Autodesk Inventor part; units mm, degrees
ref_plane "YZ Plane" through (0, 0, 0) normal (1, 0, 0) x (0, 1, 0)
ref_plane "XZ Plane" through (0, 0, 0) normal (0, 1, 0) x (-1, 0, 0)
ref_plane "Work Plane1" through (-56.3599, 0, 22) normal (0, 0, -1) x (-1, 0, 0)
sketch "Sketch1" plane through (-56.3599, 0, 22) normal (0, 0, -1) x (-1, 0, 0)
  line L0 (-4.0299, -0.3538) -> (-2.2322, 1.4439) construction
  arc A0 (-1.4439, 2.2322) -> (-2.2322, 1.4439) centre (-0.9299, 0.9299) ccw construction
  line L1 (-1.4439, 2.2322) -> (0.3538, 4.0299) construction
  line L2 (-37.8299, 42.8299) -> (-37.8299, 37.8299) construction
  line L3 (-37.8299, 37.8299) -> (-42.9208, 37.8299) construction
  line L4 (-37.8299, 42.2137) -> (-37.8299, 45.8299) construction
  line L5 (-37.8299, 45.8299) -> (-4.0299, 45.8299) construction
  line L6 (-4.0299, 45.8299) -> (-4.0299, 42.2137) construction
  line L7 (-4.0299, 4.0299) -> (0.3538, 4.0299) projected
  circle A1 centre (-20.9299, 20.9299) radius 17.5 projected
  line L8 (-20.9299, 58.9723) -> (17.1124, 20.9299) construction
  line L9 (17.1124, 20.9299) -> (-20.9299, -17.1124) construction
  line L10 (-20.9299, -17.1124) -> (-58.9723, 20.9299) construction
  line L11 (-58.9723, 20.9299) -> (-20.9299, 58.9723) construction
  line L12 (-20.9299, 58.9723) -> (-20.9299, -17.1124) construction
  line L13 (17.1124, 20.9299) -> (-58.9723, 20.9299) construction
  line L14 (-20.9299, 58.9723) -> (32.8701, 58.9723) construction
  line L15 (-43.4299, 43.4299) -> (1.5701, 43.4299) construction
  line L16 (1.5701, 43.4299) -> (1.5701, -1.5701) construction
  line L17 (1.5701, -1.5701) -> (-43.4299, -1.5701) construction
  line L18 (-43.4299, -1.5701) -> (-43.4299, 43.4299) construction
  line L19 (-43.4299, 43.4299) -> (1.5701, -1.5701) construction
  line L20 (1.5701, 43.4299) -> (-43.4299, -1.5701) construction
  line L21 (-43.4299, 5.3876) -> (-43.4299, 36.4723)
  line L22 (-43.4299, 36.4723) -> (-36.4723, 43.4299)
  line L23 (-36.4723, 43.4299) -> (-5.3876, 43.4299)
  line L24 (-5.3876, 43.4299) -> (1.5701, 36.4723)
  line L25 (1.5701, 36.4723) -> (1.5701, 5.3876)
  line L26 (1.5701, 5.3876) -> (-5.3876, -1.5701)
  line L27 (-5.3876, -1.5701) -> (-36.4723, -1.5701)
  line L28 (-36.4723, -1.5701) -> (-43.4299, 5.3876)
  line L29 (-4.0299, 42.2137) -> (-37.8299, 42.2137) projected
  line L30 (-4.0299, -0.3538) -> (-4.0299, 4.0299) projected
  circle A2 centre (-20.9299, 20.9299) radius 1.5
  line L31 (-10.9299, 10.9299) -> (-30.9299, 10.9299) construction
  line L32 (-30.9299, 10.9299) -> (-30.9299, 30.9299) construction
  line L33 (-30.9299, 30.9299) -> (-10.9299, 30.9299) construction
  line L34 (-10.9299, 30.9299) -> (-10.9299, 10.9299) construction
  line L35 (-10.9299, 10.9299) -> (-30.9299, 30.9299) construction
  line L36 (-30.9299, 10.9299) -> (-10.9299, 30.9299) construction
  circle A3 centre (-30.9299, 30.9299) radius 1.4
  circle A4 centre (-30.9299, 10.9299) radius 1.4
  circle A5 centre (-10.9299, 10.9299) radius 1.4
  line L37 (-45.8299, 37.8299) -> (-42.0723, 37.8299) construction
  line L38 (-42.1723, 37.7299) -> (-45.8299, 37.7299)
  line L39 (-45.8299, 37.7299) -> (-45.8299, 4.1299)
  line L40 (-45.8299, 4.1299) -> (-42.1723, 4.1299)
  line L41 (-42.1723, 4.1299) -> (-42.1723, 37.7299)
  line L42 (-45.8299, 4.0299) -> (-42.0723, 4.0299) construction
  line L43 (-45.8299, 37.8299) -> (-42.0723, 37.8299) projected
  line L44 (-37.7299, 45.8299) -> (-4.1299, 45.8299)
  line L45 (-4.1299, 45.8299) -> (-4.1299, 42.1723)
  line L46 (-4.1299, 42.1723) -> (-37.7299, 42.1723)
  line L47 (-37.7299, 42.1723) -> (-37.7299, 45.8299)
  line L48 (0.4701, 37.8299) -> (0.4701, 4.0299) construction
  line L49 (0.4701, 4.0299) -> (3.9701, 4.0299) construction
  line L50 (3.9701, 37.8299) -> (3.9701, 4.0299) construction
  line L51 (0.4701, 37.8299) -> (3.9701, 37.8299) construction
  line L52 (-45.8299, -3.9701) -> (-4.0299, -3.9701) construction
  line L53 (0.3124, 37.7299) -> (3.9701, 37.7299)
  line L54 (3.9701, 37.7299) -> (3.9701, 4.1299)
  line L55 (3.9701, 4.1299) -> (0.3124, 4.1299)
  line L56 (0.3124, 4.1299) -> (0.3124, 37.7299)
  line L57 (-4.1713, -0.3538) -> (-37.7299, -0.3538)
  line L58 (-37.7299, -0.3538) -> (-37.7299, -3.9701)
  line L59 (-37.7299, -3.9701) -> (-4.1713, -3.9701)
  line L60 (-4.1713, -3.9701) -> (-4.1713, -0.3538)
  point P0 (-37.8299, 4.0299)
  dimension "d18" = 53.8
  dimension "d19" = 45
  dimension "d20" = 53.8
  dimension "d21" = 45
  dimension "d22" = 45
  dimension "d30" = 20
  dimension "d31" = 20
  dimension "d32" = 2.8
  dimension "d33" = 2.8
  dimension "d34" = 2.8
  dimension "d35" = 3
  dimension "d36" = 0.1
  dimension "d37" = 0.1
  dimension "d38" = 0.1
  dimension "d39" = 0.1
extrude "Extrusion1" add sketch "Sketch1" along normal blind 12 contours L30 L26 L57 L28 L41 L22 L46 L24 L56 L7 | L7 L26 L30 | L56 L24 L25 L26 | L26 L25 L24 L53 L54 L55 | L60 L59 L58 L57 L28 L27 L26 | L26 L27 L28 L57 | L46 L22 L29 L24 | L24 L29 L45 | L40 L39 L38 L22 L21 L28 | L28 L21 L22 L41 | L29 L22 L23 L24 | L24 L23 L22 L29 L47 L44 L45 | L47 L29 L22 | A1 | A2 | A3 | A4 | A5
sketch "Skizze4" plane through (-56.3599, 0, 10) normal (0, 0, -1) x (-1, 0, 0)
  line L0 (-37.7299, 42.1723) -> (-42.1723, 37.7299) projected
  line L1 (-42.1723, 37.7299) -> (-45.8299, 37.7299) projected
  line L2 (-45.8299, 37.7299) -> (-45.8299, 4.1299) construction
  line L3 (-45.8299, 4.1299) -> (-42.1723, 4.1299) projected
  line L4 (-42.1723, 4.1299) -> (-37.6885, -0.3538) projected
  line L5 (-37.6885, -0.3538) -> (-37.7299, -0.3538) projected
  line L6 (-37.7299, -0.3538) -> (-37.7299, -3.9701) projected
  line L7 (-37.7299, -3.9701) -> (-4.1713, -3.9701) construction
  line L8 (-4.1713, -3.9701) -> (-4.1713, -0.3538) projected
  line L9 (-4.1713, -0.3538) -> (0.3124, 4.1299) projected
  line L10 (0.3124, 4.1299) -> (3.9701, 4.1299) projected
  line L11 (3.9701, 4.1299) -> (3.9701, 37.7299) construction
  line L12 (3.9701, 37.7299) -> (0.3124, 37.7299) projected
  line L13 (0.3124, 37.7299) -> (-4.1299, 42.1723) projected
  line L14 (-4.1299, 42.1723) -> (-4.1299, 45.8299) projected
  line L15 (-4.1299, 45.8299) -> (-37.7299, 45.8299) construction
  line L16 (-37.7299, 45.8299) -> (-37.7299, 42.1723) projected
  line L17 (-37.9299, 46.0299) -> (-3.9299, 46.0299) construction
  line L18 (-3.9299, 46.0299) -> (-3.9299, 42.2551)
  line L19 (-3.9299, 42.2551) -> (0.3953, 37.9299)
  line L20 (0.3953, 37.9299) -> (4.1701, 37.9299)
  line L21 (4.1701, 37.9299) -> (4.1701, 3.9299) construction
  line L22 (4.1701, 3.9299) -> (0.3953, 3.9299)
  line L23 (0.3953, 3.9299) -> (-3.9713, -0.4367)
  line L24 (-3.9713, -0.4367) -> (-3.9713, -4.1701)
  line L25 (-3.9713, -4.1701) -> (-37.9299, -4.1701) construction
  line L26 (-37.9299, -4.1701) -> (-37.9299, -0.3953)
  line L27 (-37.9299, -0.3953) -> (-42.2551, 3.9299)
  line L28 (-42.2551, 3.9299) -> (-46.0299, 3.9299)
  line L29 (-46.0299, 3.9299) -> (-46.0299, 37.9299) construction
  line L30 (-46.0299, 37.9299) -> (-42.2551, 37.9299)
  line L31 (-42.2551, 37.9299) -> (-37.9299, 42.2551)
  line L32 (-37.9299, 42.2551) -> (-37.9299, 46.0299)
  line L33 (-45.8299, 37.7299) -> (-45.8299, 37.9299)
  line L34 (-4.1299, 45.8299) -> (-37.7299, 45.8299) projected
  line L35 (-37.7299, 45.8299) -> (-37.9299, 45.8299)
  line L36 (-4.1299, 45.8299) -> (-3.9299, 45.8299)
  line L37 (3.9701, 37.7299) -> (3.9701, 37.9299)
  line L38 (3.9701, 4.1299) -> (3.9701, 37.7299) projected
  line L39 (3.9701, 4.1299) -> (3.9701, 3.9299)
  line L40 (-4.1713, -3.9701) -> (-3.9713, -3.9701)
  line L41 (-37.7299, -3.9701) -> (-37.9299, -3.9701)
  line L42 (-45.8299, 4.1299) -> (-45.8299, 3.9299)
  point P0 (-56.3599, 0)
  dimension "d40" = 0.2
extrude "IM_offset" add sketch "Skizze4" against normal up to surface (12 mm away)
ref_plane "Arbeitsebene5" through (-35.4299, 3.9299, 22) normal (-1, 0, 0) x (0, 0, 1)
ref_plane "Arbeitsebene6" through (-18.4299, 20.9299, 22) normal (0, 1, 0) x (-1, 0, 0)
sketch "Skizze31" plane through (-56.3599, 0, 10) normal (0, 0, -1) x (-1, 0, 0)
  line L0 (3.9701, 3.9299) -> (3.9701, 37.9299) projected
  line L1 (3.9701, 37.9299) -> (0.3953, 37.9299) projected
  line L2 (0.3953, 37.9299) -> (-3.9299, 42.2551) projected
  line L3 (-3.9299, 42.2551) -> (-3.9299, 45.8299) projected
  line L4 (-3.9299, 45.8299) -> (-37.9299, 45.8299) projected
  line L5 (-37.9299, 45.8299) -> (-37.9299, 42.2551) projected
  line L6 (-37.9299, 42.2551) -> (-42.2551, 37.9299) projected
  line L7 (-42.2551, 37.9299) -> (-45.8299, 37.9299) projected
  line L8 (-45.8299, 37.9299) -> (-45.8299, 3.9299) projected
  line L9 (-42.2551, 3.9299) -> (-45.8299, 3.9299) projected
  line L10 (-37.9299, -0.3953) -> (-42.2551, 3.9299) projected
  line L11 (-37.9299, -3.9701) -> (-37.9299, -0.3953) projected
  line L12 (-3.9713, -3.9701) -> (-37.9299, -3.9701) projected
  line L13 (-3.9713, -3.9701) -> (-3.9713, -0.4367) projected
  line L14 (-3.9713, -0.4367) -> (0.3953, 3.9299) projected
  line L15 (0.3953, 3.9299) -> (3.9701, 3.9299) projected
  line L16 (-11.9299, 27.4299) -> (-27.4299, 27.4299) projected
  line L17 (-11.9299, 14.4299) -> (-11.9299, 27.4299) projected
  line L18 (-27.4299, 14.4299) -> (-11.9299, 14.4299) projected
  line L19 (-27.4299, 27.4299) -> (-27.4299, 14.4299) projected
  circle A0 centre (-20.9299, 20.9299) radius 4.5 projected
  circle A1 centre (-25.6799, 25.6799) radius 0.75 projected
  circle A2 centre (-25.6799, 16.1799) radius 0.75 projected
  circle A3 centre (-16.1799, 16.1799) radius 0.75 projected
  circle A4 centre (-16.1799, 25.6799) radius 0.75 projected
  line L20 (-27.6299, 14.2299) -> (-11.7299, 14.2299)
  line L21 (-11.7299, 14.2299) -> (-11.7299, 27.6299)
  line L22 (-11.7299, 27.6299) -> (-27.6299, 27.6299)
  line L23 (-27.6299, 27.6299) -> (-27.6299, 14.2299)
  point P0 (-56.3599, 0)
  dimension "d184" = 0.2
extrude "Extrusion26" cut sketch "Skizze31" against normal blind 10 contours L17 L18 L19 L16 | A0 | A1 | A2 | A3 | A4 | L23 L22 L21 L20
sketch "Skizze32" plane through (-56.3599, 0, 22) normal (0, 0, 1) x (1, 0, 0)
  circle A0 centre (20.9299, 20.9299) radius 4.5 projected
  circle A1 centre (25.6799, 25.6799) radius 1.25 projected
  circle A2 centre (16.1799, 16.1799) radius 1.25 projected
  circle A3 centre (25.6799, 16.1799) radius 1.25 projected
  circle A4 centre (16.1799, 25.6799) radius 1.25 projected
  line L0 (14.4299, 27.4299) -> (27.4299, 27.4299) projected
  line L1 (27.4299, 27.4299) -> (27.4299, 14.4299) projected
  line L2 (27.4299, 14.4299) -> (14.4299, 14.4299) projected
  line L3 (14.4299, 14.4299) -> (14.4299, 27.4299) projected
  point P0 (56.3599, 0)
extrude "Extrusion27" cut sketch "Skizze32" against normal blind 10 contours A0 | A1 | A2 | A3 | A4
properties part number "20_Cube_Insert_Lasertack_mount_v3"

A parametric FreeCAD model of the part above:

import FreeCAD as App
import Part
import Sketcher
from FreeCAD import Vector
Q = App.Units.Quantity


def add_polygon(sketch, points):
    """Adds a closed chain of lines whose ends are joined by coincident constraints."""
    first, n = sketch.GeometryCount, len(points)
    for a, b in zip(points, points[1:] + points[:1]):
        sketch.addGeometry(Part.LineSegment(App.Vector(*a, 0), App.Vector(*b, 0)), False)
    for i in range(n):
        sketch.addConstraint(Sketcher.Constraint("Coincident", first + i, 2, first + (i + 1) % n, 1))

doc = App.newDocument("Part")
params = doc.addObject("Spreadsheet::Sheet", "Params")
for row, (alias, value) in enumerate([
    ("sketch1_width", "33.6 mm"),
    ("pad1_length", "12 mm"),
    ("sketch2_width", "0.2 mm"),
    ("pad2_length", "12 mm"),
    ("sketch3_width", "15.9 mm"),
    ("sketch3_height", "13.4 mm"),
    ("pocket1_length", "10 mm"),
    ("sketch4_diameter", "9 mm"),
    ("sketch4_diameter2", "2.5 mm"),
    ("pocket2_length", "10 mm"),
], start=1):
    params.set(f"A{row}", alias)
    params.set(f"B{row}", "=" + value)
    params.setAlias(f"B{row}", alias)

body = doc.addObject("PartDesign::Body", "Body")

# Sketch on XY plane
sketch1 = body.newObject("Sketcher::SketchObject", "Sketch")
sketch1.AttachmentSupport = (doc.getObject("XY_Plane"), [""])
sketch1.MapMode = "FlatFace"
sketch1.AttachmentOffset = App.Placement(Vector(0, 0, 22), App.Rotation())
add_polygon(sketch1, [(-52.189, -0.354), (-56.672, 4.13), (-60.33, 4.13), (-60.33, 37.73), (-56.672, 37.73), (-52.23, 42.172), (-52.23, 45.83), (-18.63, 45.83), (-18.63, 42.172), (-14.188, 37.73), (-10.53, 37.73), (-10.53, 4.13), (-14.188, 4.13), (-18.671, -0.354), (-18.63, -0.354), (-18.63, -3.97), (-52.189, -3.97)])  # lines 0-16
sketch1.addConstraint(Sketcher.Constraint("Horizontal", 1))
sketch1.addConstraint(Sketcher.Constraint("Vertical", 2))
sketch1.addConstraint(Sketcher.Constraint("Horizontal", 3))
sketch1.addConstraint(Sketcher.Constraint("Vertical", 5))
sketch1.addConstraint(Sketcher.Constraint("Horizontal", 6))
sketch1.addConstraint(Sketcher.Constraint("Vertical", 7))
sketch1.addConstraint(Sketcher.Constraint("Horizontal", 9))
sketch1.addConstraint(Sketcher.Constraint("Vertical", 10))
sketch1.addConstraint(Sketcher.Constraint("Horizontal", 11))
sketch1.addConstraint(Sketcher.Constraint("Horizontal", 13))
sketch1.addConstraint(Sketcher.Constraint("Vertical", 14))
sketch1.addConstraint(Sketcher.Constraint("Horizontal", 15))
sketch1.addConstraint(Sketcher.Constraint("Vertical", 16))
sketch1.addConstraint(Sketcher.Constraint("Perpendicular", 0, 4))
sketch1.addConstraint(Sketcher.Constraint("Perpendicular", 4, 8))
sketch1.addConstraint(Sketcher.Constraint("Perpendicular", 8, 12))
sketch1.addConstraint(Sketcher.Constraint("Horizontal", 4, 2, 7, 2))
sketch1.addConstraint(Sketcher.Constraint("Horizontal", 3, 2, 8, 2))
sketch1.addConstraint(Sketcher.Constraint("Horizontal", 1, 2, 10, 2))
sketch1.addConstraint(Sketcher.Constraint("Horizontal", 13, 2, 16, 2))
sketch1.addConstraint(Sketcher.Constraint("Vertical", 0, 2, 3, 2))
sketch1.addConstraint(Sketcher.Constraint("Vertical", 8, 2, 11, 2))
sketch1.addConstraint(Sketcher.Constraint("Vertical", 7, 2, 13, 2))
sketch1.addConstraint(Sketcher.Constraint("Equal", 3, 9))
sketch1.addConstraint(Sketcher.Constraint("Equal", 6, 2))
sketch1.addConstraint(Sketcher.Constraint("Equal", 11, 5))
sketch1.addConstraint(Sketcher.Constraint("Equal", 4, 8))
sketch1.addConstraint(Sketcher.Constraint("DistanceX", 6, 1, 6, 2, Q("33.6 mm")))
sketch1.addConstraint(Sketcher.Constraint("DistanceX", 2, 2, 4, 2, Q("8.1 mm")))
sketch1.addConstraint(Sketcher.Constraint("DistanceY", 14, 2, 11, 2, Q("8.1 mm")))
sketch1.addConstraint(Sketcher.Constraint("DistanceY", -1, 1, 0, 2, Q("4.13 mm")))
sketch1.addConstraint(Sketcher.Constraint("DistanceX", 1, 2, -1, 1, Q("60.33 mm")))
sketch1.addConstraint(Sketcher.Constraint("Distance", 0, Q("6.341 mm")))
sketch1.addConstraint(Sketcher.Constraint("DistanceX", 1, 2, 1, 1, Q("3.6577 mm")))
sketch1.setExpression("Constraints[44]", "Params.sketch1_width")
pad1 = body.newObject("PartDesign::Pad", "Pad")
pad1.Profile = sketch1
pad1.setExpression("Length", "Params.pad1_length")
pad1.Reversed = True

# Sketch on XY plane
sketch2 = body.newObject("Sketcher::SketchObject", "Sketch001")
sketch2.AttachmentSupport = (doc.getObject("XY_Plane"), [""])
sketch2.MapMode = "FlatFace"
sketch2.AttachmentOffset = App.Placement(Vector(0, 0, 10), App.Rotation())
add_polygon(sketch2, [(-60.33, 3.93), (-60.33, 4.13), (-56.672, 4.13), (-52.189, -0.354), (-52.189, -3.97), (-52.389, -3.97), (-52.389, -0.437), (-56.755, 3.93)])  # lines 0-7
add_polygon(sketch2, [(-52.43, 45.83), (-52.23, 45.83), (-52.23, 42.172), (-56.672, 37.73), (-60.33, 37.73), (-60.33, 37.93), (-56.755, 37.93), (-52.43, 42.255)])  # lines 8-15
add_polygon(sketch2, [(-14.188, 37.73), (-18.63, 42.172), (-18.63, 45.83), (-18.43, 45.83), (-18.43, 42.255), (-14.105, 37.93), (-10.53, 37.93), (-10.53, 37.73)])  # lines 16-23
add_polygon(sketch2, [(-14.188, 4.13), (-10.53, 4.13), (-10.53, 3.93), (-14.105, 3.93), (-18.43, -0.395), (-18.43, -3.97), (-18.63, -3.97), (-18.63, -0.354), (-18.671, -0.354)])  # lines 24-32
sketch2.addConstraint(Sketcher.Constraint("Vertical", 0))
sketch2.addConstraint(Sketcher.Constraint("Horizontal", 1))
sketch2.addConstraint(Sketcher.Constraint("Vertical", 3))
sketch2.addConstraint(Sketcher.Constraint("Horizontal", 4))
sketch2.addConstraint(Sketcher.Constraint("Vertical", 5))
sketch2.addConstraint(Sketcher.Constraint("Horizontal", 7))
sketch2.addConstraint(Sketcher.Constraint("Horizontal", 8))
sketch2.addConstraint(Sketcher.Constraint("Vertical", 9))
sketch2.addConstraint(Sketcher.Constraint("Horizontal", 11))
sketch2.addConstraint(Sketcher.Constraint("Vertical", 12))
sketch2.addConstraint(Sketcher.Constraint("Horizontal", 13))
sketch2.addConstraint(Sketcher.Constraint("Vertical", 15))
sketch2.addConstraint(Sketcher.Constraint("Vertical", 17))
sketch2.addConstraint(Sketcher.Constraint("Horizontal", 18))
sketch2.addConstraint(Sketcher.Constraint("Vertical", 19))
sketch2.addConstraint(Sketcher.Constraint("Horizontal", 21))
sketch2.addConstraint(Sketcher.Constraint("Vertical", 22))
sketch2.addConstraint(Sketcher.Constraint("Horizontal", 23))
sketch2.addConstraint(Sketcher.Constraint("Horizontal", 24))
sketch2.addConstraint(Sketcher.Constraint("Vertical", 25))
sketch2.addConstraint(Sketcher.Constraint("Horizontal", 26))
sketch2.addConstraint(Sketcher.Constraint("Vertical", 28))
sketch2.addConstraint(Sketcher.Constraint("Horizontal", 29))
sketch2.addConstraint(Sketcher.Constraint("Vertical", 30))
sketch2.addConstraint(Sketcher.Constraint("Horizontal", 31))
sketch2.addConstraint(Sketcher.Constraint("Parallel", 2, 6))
sketch2.addConstraint(Sketcher.Constraint("Perpendicular", 6, 10))
sketch2.addConstraint(Sketcher.Constraint("Parallel", 10, 14))
sketch2.addConstraint(Sketcher.Constraint("Perpendicular", 14, 16))
sketch2.addConstraint(Sketcher.Constraint("Parallel", 16, 20))
sketch2.addConstraint(Sketcher.Constraint("Perpendicular", 20, 27))
sketch2.addConstraint(Sketcher.Constraint("Parallel", 27, 32))
sketch2.addConstraint(Sketcher.Constraint("Horizontal", 9, 2, 16, 2))
sketch2.addConstraint(Sketcher.Constraint("Horizontal", 15, 2, 17, 2))
sketch2.addConstraint(Sketcher.Constraint("Horizontal", 14, 2, 19, 2))
sketch2.addConstraint(Sketcher.Constraint("Horizontal", 13, 2, 20, 2))
sketch2.addConstraint(Sketcher.Constraint("Horizontal", 11, 2, 22, 2))
sketch2.addConstraint(Sketcher.Constraint("Horizontal", 1, 2, 24, 2))
sketch2.addConstraint(Sketcher.Constraint("Horizontal", 7, 2, 25, 2))
sketch2.addConstraint(Sketcher.Constraint("Horizontal", 4, 2, 28, 2))
sketch2.addConstraint(Sketcher.Constraint("Horizontal", 2, 2, 30, 2))
sketch2.addConstraint(Sketcher.Constraint("Vertical", 1, 2, 10, 2))
sketch2.addConstraint(Sketcher.Constraint("Vertical", 7, 2, 11, 2))
sketch2.addConstraint(Sketcher.Constraint("Vertical", 6, 2, 13, 2))
sketch2.addConstraint(Sketcher.Constraint("Vertical", 22, 2, 24, 2))
sketch2.addConstraint(Sketcher.Constraint("Vertical", 20, 2, 26, 2))
sketch2.addConstraint(Sketcher.Constraint("Vertical", 19, 2, 27, 2))
sketch2.addConstraint(Sketcher.Constraint("Vertical", 17, 2, 29, 2))
sketch2.addConstraint(Sketcher.Constraint("Vertical", 23, 2, 32, 2))
sketch2.addConstraint(Sketcher.Constraint("Equal", 4, 8))
sketch2.addConstraint(Sketcher.Constraint("Equal", 8, 18))
sketch2.addConstraint(Sketcher.Constraint("Equal", 13, 21))
sketch2.addConstraint(Sketcher.Constraint("Equal", 11, 23))
sketch2.addConstraint(Sketcher.Constraint("Equal", 29, 0))
sketch2.addConstraint(Sketcher.Constraint("Equal", 24, 9))
sketch2.addConstraint(Sketcher.Constraint("Equal", 0, 12))
sketch2.addConstraint(Sketcher.Constraint("Equal", 19, 28))
sketch2.addConstraint(Sketcher.Constraint("DistanceX", 4, 2, 4, 1, Q("0.2 mm")))
sketch2.addConstraint(Sketcher.Constraint("DistanceX", 15, 2, 18, 2, Q("34 mm")))
sketch2.addConstraint(Sketcher.Constraint("DistanceY", 25, 2, 21, 2, Q("34 mm")))
sketch2.addConstraint(Sketcher.Constraint("DistanceY", 3, 2, 1, 2, Q("8.1 mm")))
sketch2.addConstraint(Sketcher.Constraint("DistanceX", 0, 2, -1, 1, Q("60.33 mm")))
sketch2.addConstraint(Sketcher.Constraint("DistanceY", -1, 1, 0, 2, Q("4.13 mm")))
sketch2.addConstraint(Sketcher.Constraint("Distance", 2, Q("6.341 mm")))
sketch2.addConstraint(Sketcher.Constraint("DistanceX", 1, 1, 1, 2, Q("3.6577 mm")))
sketch2.addConstraint(Sketcher.Constraint("DistanceX", 7, 2, 7, 1, Q("3.5748 mm")))
sketch2.setExpression("Constraints[90]", "Params.sketch2_width")
pad2 = body.newObject("PartDesign::Pad", "Pad001")
pad2.Profile = sketch2
pad2.setExpression("Length", "Params.pad2_length")

# Sketch on XY plane
sketch3 = body.newObject("Sketcher::SketchObject", "Sketch002")
sketch3.AttachmentSupport = (doc.getObject("XY_Plane"), [""])
sketch3.MapMode = "FlatFace"
sketch3.AttachmentOffset = App.Placement(Vector(0, 0, 10), App.Rotation())
add_polygon(sketch3, [(-29, 28), (-29, 14), (-45, 14), (-45, 28)])  # lines 0-3
sketch3.addConstraint(Sketcher.Constraint("Vertical", 0))
sketch3.addConstraint(Sketcher.Constraint("Horizontal", 1))
sketch3.addConstraint(Sketcher.Constraint("Vertical", 2))
sketch3.addConstraint(Sketcher.Constraint("Horizontal", 3))
sketch3.addConstraint(Sketcher.Constraint("DistanceX", 1, 2, 1, 1, Q("15.9 mm")))
sketch3.addConstraint(Sketcher.Constraint("DistanceY", 0, 2, 0, 1, Q("13.4 mm")))
sketch3.addConstraint(Sketcher.Constraint("DistanceX", 0, 2, -1, 1, Q("28.73 mm")))
sketch3.addConstraint(Sketcher.Constraint("DistanceY", -1, 1, 0, 2, Q("14.23 mm")))
sketch3.setExpression("Constraints[8]", "Params.sketch3_width")
sketch3.setExpression("Constraints[9]", "Params.sketch3_height")
pocket1 = body.newObject("PartDesign::Pocket", "Pocket")
pocket1.Profile = sketch3
pocket1.setExpression("Length", "Params.pocket1_length")
pocket1.Reversed = True

# Sketch on XY plane
sketch4 = body.newObject("Sketcher::SketchObject", "Sketch003")
sketch4.AttachmentSupport = (doc.getObject("XY_Plane"), [""])
sketch4.MapMode = "FlatFace"
sketch4.AttachmentOffset = App.Placement(Vector(0, 0, 22), App.Rotation())
sketch4.addGeometry(Part.Circle(Vector(-35.4, 20.9, 0), Vector(0, 0, 1), 4.5), False)
sketch4.addGeometry(Part.Circle(Vector(-30.7, 25.7, 0), Vector(0, 0, 1), 1.2), False)
sketch4.addGeometry(Part.Circle(Vector(-40.2, 16.2, 0), Vector(0, 0, 1), 1.2), False)
sketch4.addGeometry(Part.Circle(Vector(-30.7, 16.2, 0), Vector(0, 0, 1), 1.2), False)
sketch4.addGeometry(Part.Circle(Vector(-40.2, 25.7, 0), Vector(0, 0, 1), 1.2), False)
sketch4.addConstraint(Sketcher.Constraint("Equal", 1, 2))
sketch4.addConstraint(Sketcher.Constraint("Equal", 2, 3))
sketch4.addConstraint(Sketcher.Constraint("Equal", 3, 4))
sketch4.addConstraint(Sketcher.Constraint("Horizontal", 2, 3, 3, 3))
sketch4.addConstraint(Sketcher.Constraint("Horizontal", 1, 3, 4, 3))
sketch4.addConstraint(Sketcher.Constraint("Vertical", 1, 3, 3, 3))
sketch4.addConstraint(Sketcher.Constraint("Vertical", 2, 3, 4, 3))
sketch4.addConstraint(Sketcher.Constraint("Diameter", 0, Q("9 mm")))
sketch4.addConstraint(Sketcher.Constraint("Diameter", 1, Q("2.5 mm")))
sketch4.addConstraint(Sketcher.Constraint("DistanceX", 2, 3, 1, 3, Q("9.5 mm")))
sketch4.addConstraint(Sketcher.Constraint("DistanceY", 2, 3, 1, 3, Q("9.5 mm")))
sketch4.addConstraint(Sketcher.Constraint("DistanceX", 0, 3, -1, 1, Q("35.43 mm")))
sketch4.addConstraint(Sketcher.Constraint("DistanceY", -1, 1, 0, 3, Q("20.93 mm")))
sketch4.addConstraint(Sketcher.Constraint("DistanceX", 1, 3, -1, 1, Q("30.68 mm")))
sketch4.addConstraint(Sketcher.Constraint("DistanceY", -1, 1, 1, 3, Q("25.68 mm")))
sketch4.setExpression("Constraints[7]", "Params.sketch4_diameter")
sketch4.setExpression("Constraints[8]", "Params.sketch4_diameter2")
pocket2 = body.newObject("PartDesign::Pocket", "Pocket001")
pocket2.Profile = sketch4
pocket2.setExpression("Length", "Params.pocket2_length")

doc.recompute()
